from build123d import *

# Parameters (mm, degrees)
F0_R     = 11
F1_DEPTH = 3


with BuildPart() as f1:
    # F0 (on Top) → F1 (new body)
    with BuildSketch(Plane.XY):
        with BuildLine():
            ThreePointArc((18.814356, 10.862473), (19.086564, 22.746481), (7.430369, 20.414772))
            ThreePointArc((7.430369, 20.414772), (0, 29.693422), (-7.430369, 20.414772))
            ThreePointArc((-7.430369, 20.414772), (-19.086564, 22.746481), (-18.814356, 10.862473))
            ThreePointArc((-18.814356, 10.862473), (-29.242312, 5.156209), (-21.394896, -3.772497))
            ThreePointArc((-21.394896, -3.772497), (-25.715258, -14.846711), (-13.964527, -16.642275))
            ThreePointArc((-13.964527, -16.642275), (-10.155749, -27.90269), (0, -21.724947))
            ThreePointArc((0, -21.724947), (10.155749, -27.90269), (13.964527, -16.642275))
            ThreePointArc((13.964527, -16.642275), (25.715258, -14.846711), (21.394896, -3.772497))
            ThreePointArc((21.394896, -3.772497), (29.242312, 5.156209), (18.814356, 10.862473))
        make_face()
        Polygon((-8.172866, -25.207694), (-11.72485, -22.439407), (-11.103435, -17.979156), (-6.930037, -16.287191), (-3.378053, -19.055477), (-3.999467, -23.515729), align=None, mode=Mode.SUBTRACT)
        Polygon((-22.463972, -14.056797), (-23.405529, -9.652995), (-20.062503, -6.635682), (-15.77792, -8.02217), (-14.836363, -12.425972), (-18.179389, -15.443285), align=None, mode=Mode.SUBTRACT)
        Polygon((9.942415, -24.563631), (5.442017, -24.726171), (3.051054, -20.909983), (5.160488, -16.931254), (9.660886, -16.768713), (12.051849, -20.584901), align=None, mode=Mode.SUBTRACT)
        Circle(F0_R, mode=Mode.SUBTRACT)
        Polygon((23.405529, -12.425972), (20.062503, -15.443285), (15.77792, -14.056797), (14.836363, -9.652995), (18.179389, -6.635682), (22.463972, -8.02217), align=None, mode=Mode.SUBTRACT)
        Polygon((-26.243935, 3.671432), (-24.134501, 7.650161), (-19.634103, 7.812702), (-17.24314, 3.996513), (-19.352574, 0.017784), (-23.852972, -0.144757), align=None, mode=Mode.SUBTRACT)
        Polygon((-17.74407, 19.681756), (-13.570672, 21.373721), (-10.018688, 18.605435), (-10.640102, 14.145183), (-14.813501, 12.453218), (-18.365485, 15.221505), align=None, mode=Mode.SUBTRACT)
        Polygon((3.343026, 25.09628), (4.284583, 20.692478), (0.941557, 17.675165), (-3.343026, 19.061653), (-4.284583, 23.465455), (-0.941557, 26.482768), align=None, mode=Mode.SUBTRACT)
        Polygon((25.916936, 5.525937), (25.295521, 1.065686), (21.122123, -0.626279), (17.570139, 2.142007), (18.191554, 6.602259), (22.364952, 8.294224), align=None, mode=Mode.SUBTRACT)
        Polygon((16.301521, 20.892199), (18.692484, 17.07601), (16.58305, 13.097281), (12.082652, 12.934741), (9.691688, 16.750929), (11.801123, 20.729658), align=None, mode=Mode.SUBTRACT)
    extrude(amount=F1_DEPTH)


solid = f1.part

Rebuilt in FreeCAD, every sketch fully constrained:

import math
import FreeCAD as App
import Part
import Sketcher
Q = App.Units.Quantity

doc = App.newDocument("Part")
body = doc.addObject("PartDesign::Body", "Body")

# Sketch on XY plane
sketch1 = doc.addObject("Sketcher::SketchObject", "Sketch")
body.addObject(sketch1)
sketch1.AttachmentSupport = (doc.XY_Plane, [""])
sketch1.MapMode = "FlatFace"
sketch1.addGeometry(Part.ArcOfCircle(Part.Circle(App.Vector(14.2, 16.9, 0), App.Vector(0, 0, 1), 7.6), math.radians(-53), math.radians(153)), False)
sketch1.addGeometry(Part.ArcOfCircle(Part.Circle(App.Vector(0, 22.1, 0), App.Vector(0, 0, 1), 7.6), math.radians(-13), math.radians(193)), False)
sketch1.addGeometry(Part.ArcOfCircle(Part.Circle(App.Vector(-14.2, 16.9, 0), App.Vector(0, 0, 1), 7.6), math.radians(27), math.radians(233)), False)
sketch1.addGeometry(Part.ArcOfCircle(Part.Circle(App.Vector(-21.7, 3.8, 0), App.Vector(0, 0, 1), 7.6), math.radians(67), math.radians(273)), False)
sketch1.addGeometry(Part.ArcOfCircle(Part.Circle(App.Vector(-19.1, -11, 0), App.Vector(0, 0, 1), 7.6), math.radians(107), math.radians(313)), False)
sketch1.addGeometry(Part.ArcOfCircle(Part.Circle(App.Vector(-7.6, -20.7, 0), App.Vector(0, 0, 1), 7.6), math.radians(147), math.radians(353)), False)
sketch1.addGeometry(Part.ArcOfCircle(Part.Circle(App.Vector(7.6, -20.7, 0), App.Vector(0, 0, 1), 7.6), math.radians(-173), math.radians(33)), False)
sketch1.addGeometry(Part.ArcOfCircle(Part.Circle(App.Vector(19.1, -11, 0), App.Vector(0, 0, 1), 7.6), math.radians(-133), math.radians(73)), False)
sketch1.addGeometry(Part.ArcOfCircle(Part.Circle(App.Vector(21.7, 3.8, 0), App.Vector(0, 0, 1), 7.6), math.radians(-93), math.radians(113)), False)
sketch1.addGeometry(Part.LineSegment(App.Vector(-4, -23.5, 0), App.Vector(-8.2, -25.2, 0)), False)
sketch1.addGeometry(Part.LineSegment(App.Vector(-8.2, -25.2, 0), App.Vector(-11.7, -22.4, 0)), False)
sketch1.addGeometry(Part.LineSegment(App.Vector(-11.7, -22.4, 0), App.Vector(-11.1, -18, 0)), False)
sketch1.addGeometry(Part.LineSegment(App.Vector(-11.1, -18, 0), App.Vector(-6.9, -16.3, 0)), False)
sketch1.addGeometry(Part.LineSegment(App.Vector(-6.9, -16.3, 0), App.Vector(-3.4, -19.1, 0)), False)
sketch1.addGeometry(Part.LineSegment(App.Vector(-3.4, -19.1, 0), App.Vector(-4, -23.5, 0)), False)
sketch1.addGeometry(Part.LineSegment(App.Vector(-18.2, -15.4, 0), App.Vector(-22.5, -14.1, 0)), False)
sketch1.addGeometry(Part.LineSegment(App.Vector(-22.5, -14.1, 0), App.Vector(-23.4, -9.7, 0)), False)
sketch1.addGeometry(Part.LineSegment(App.Vector(-23.4, -9.7, 0), App.Vector(-20.1, -6.6, 0)), False)
sketch1.addGeometry(Part.LineSegment(App.Vector(-20.1, -6.6, 0), App.Vector(-15.8, -8, 0)), False)
sketch1.addGeometry(Part.LineSegment(App.Vector(-15.8, -8, 0), App.Vector(-14.8, -12.4, 0)), False)
sketch1.addGeometry(Part.LineSegment(App.Vector(-14.8, -12.4, 0), App.Vector(-18.2, -15.4, 0)), False)
sketch1.addGeometry(Part.LineSegment(App.Vector(12.1, -20.6, 0), App.Vector(9.9, -24.6, 0)), False)
sketch1.addGeometry(Part.LineSegment(App.Vector(9.9, -24.6, 0), App.Vector(5.4, -24.7, 0)), False)
sketch1.addGeometry(Part.LineSegment(App.Vector(5.4, -24.7, 0), App.Vector(3.1, -20.9, 0)), False)
sketch1.addGeometry(Part.LineSegment(App.Vector(3.1, -20.9, 0), App.Vector(5.2, -16.9, 0)), False)
sketch1.addGeometry(Part.LineSegment(App.Vector(5.2, -16.9, 0), App.Vector(9.7, -16.8, 0)), False)
sketch1.addGeometry(Part.LineSegment(App.Vector(9.7, -16.8, 0), App.Vector(12.1, -20.6, 0)), False)
sketch1.addGeometry(Part.Circle(App.Vector(0, 0, 0), App.Vector(0, 0, 1), 11), False)
sketch1.addGeometry(Part.LineSegment(App.Vector(22.5, -8, 0), App.Vector(23.4, -12.4, 0)), False)
sketch1.addGeometry(Part.LineSegment(App.Vector(23.4, -12.4, 0), App.Vector(20.1, -15.4, 0)), False)
sketch1.addGeometry(Part.LineSegment(App.Vector(20.1, -15.4, 0), App.Vector(15.8, -14.1, 0)), False)
sketch1.addGeometry(Part.LineSegment(App.Vector(15.8, -14.1, 0), App.Vector(14.8, -9.7, 0)), False)
sketch1.addGeometry(Part.LineSegment(App.Vector(14.8, -9.7, 0), App.Vector(18.2, -6.6, 0)), False)
sketch1.addGeometry(Part.LineSegment(App.Vector(18.2, -6.6, 0), App.Vector(22.5, -8, 0)), False)
sketch1.addGeometry(Part.LineSegment(App.Vector(-23.9, -0.1, 0), App.Vector(-26.2, 3.7, 0)), False)
sketch1.addGeometry(Part.LineSegment(App.Vector(-26.2, 3.7, 0), App.Vector(-24.1, 7.7, 0)), False)
sketch1.addGeometry(Part.LineSegment(App.Vector(-24.1, 7.7, 0), App.Vector(-19.6, 7.8, 0)), False)
sketch1.addGeometry(Part.LineSegment(App.Vector(-19.6, 7.8, 0), App.Vector(-17.2, 4, 0)), False)
sketch1.addGeometry(Part.LineSegment(App.Vector(-17.2, 4, 0), App.Vector(-19.4, 0, 0)), False)
sketch1.addGeometry(Part.LineSegment(App.Vector(-19.4, 0, 0), App.Vector(-23.9, -0.1, 0)), False)
sketch1.addGeometry(Part.LineSegment(App.Vector(-18.4, 15.2, 0), App.Vector(-17.7, 19.7, 0)), False)
sketch1.addGeometry(Part.LineSegment(App.Vector(-17.7, 19.7, 0), App.Vector(-13.6, 21.4, 0)), False)
sketch1.addGeometry(Part.LineSegment(App.Vector(-13.6, 21.4, 0), App.Vector(-10, 18.6, 0)), False)
sketch1.addGeometry(Part.LineSegment(App.Vector(-10, 18.6, 0), App.Vector(-10.6, 14.1, 0)), False)
sketch1.addGeometry(Part.LineSegment(App.Vector(-10.6, 14.1, 0), App.Vector(-14.8, 12.5, 0)), False)
sketch1.addGeometry(Part.LineSegment(App.Vector(-14.8, 12.5, 0), App.Vector(-18.4, 15.2, 0)), False)
sketch1.addGeometry(Part.LineSegment(App.Vector(22.4, 8.3, 0), App.Vector(25.9, 5.5, 0)), False)
sketch1.addGeometry(Part.LineSegment(App.Vector(25.9, 5.5, 0), App.Vector(25.3, 1.1, 0)), False)
sketch1.addGeometry(Part.LineSegment(App.Vector(25.3, 1.1, 0), App.Vector(21.1, -0.6, 0)), False)
sketch1.addGeometry(Part.LineSegment(App.Vector(21.1, -0.6, 0), App.Vector(17.6, 2.1, 0)), False)
sketch1.addGeometry(Part.LineSegment(App.Vector(17.6, 2.1, 0), App.Vector(18.2, 6.6, 0)), False)
sketch1.addGeometry(Part.LineSegment(App.Vector(18.2, 6.6, 0), App.Vector(22.4, 8.3, 0)), False)
sketch1.addGeometry(Part.LineSegment(App.Vector(-0.9, 26.5, 0), App.Vector(3.3, 25.1, 0)), False)
sketch1.addGeometry(Part.LineSegment(App.Vector(3.3, 25.1, 0), App.Vector(4.3, 20.7, 0)), False)
sketch1.addGeometry(Part.LineSegment(App.Vector(4.3, 20.7, 0), App.Vector(0.9, 17.7, 0)), False)
sketch1.addGeometry(Part.LineSegment(App.Vector(0.9, 17.7, 0), App.Vector(-3.3, 19.1, 0)), False)
sketch1.addGeometry(Part.LineSegment(App.Vector(-3.3, 19.1, 0), App.Vector(-4.3, 23.5, 0)), False)
sketch1.addGeometry(Part.LineSegment(App.Vector(-4.3, 23.5, 0), App.Vector(-0.9, 26.5, 0)), False)
sketch1.addGeometry(Part.LineSegment(App.Vector(11.8, 20.7, 0), App.Vector(16.3, 20.9, 0)), False)
sketch1.addGeometry(Part.LineSegment(App.Vector(16.3, 20.9, 0), App.Vector(18.7, 17.1, 0)), False)
sketch1.addGeometry(Part.LineSegment(App.Vector(18.7, 17.1, 0), App.Vector(16.6, 13.1, 0)), False)
sketch1.addGeometry(Part.LineSegment(App.Vector(16.6, 13.1, 0), App.Vector(12.1, 12.9, 0)), False)
sketch1.addGeometry(Part.LineSegment(App.Vector(12.1, 12.9, 0), App.Vector(9.7, 16.8, 0)), False)
sketch1.addGeometry(Part.LineSegment(App.Vector(9.7, 16.8, 0), App.Vector(11.8, 20.7, 0)), False)
sketch1.addConstraint(Sketcher.Constraint("Coincident", 0, 2, 1, 1))
sketch1.addConstraint(Sketcher.Constraint("Coincident", 1, 2, 2, 1))
sketch1.addConstraint(Sketcher.Constraint("Coincident", 2, 2, 3, 1))
sketch1.addConstraint(Sketcher.Constraint("Coincident", 3, 2, 4, 1))
sketch1.addConstraint(Sketcher.Constraint("Coincident", 4, 2, 5, 1))
sketch1.addConstraint(Sketcher.Constraint("Coincident", 5, 2, 6, 1))
sketch1.addConstraint(Sketcher.Constraint("Coincident", 6, 2, 7, 1))
sketch1.addConstraint(Sketcher.Constraint("Coincident", 7, 2, 8, 1))
sketch1.addConstraint(Sketcher.Constraint("Coincident", 8, 2, 0, 1))
sketch1.addConstraint(Sketcher.Constraint("Coincident", 9, 2, 10, 1))
sketch1.addConstraint(Sketcher.Constraint("Coincident", 10, 2, 11, 1))
sketch1.addConstraint(Sketcher.Constraint("Coincident", 11, 2, 12, 1))
sketch1.addConstraint(Sketcher.Constraint("Coincident", 12, 2, 13, 1))
sketch1.addConstraint(Sketcher.Constraint("Coincident", 13, 2, 14, 1))
sketch1.addConstraint(Sketcher.Constraint("Coincident", 14, 2, 9, 1))
sketch1.addConstraint(Sketcher.Constraint("Coincident", 15, 2, 16, 1))
sketch1.addConstraint(Sketcher.Constraint("Coincident", 16, 2, 17, 1))
sketch1.addConstraint(Sketcher.Constraint("Coincident", 17, 2, 18, 1))
sketch1.addConstraint(Sketcher.Constraint("Coincident", 18, 2, 19, 1))
sketch1.addConstraint(Sketcher.Constraint("Coincident", 19, 2, 20, 1))
sketch1.addConstraint(Sketcher.Constraint("Coincident", 20, 2, 15, 1))
sketch1.addConstraint(Sketcher.Constraint("Coincident", 21, 2, 22, 1))
sketch1.addConstraint(Sketcher.Constraint("Coincident", 22, 2, 23, 1))
sketch1.addConstraint(Sketcher.Constraint("Coincident", 23, 2, 24, 1))
sketch1.addConstraint(Sketcher.Constraint("Coincident", 24, 2, 25, 1))
sketch1.addConstraint(Sketcher.Constraint("Coincident", 25, 2, 26, 1))
sketch1.addConstraint(Sketcher.Constraint("Coincident", 26, 2, 21, 1))
sketch1.addConstraint(Sketcher.Constraint("Coincident", 28, 2, 29, 1))
sketch1.addConstraint(Sketcher.Constraint("Coincident", 29, 2, 30, 1))
sketch1.addConstraint(Sketcher.Constraint("Coincident", 30, 2, 31, 1))
sketch1.addConstraint(Sketcher.Constraint("Coincident", 31, 2, 32, 1))
sketch1.addConstraint(Sketcher.Constraint("Coincident", 32, 2, 33, 1))
sketch1.addConstraint(Sketcher.Constraint("Coincident", 33, 2, 28, 1))
sketch1.addConstraint(Sketcher.Constraint("Coincident", 34, 2, 35, 1))
sketch1.addConstraint(Sketcher.Constraint("Coincident", 35, 2, 36, 1))
sketch1.addConstraint(Sketcher.Constraint("Coincident", 36, 2, 37, 1))
sketch1.addConstraint(Sketcher.Constraint("Coincident", 37, 2, 38, 1))
sketch1.addConstraint(Sketcher.Constraint("Coincident", 38, 2, 39, 1))
sketch1.addConstraint(Sketcher.Constraint("Coincident", 39, 2, 34, 1))
sketch1.addConstraint(Sketcher.Constraint("Coincident", 40, 2, 41, 1))
sketch1.addConstraint(Sketcher.Constraint("Coincident", 41, 2, 42, 1))
sketch1.addConstraint(Sketcher.Constraint("Coincident", 42, 2, 43, 1))
sketch1.addConstraint(Sketcher.Constraint("Coincident", 43, 2, 44, 1))
sketch1.addConstraint(Sketcher.Constraint("Coincident", 44, 2, 45, 1))
sketch1.addConstraint(Sketcher.Constraint("Coincident", 45, 2, 40, 1))
sketch1.addConstraint(Sketcher.Constraint("Coincident", 46, 2, 47, 1))
sketch1.addConstraint(Sketcher.Constraint("Coincident", 47, 2, 48, 1))
sketch1.addConstraint(Sketcher.Constraint("Coincident", 48, 2, 49, 1))
sketch1.addConstraint(Sketcher.Constraint("Coincident", 49, 2, 50, 1))
sketch1.addConstraint(Sketcher.Constraint("Coincident", 50, 2, 51, 1))
sketch1.addConstraint(Sketcher.Constraint("Coincident", 51, 2, 46, 1))
sketch1.addConstraint(Sketcher.Constraint("Coincident", 52, 2, 53, 1))
sketch1.addConstraint(Sketcher.Constraint("Coincident", 53, 2, 54, 1))
sketch1.addConstraint(Sketcher.Constraint("Coincident", 54, 2, 55, 1))
sketch1.addConstraint(Sketcher.Constraint("Coincident", 55, 2, 56, 1))
sketch1.addConstraint(Sketcher.Constraint("Coincident", 56, 2, 57, 1))
sketch1.addConstraint(Sketcher.Constraint("Coincident", 57, 2, 52, 1))
sketch1.addConstraint(Sketcher.Constraint("Coincident", 58, 2, 59, 1))
sketch1.addConstraint(Sketcher.Constraint("Coincident", 59, 2, 60, 1))
sketch1.addConstraint(Sketcher.Constraint("Coincident", 60, 2, 61, 1))
sketch1.addConstraint(Sketcher.Constraint("Coincident", 61, 2, 62, 1))
sketch1.addConstraint(Sketcher.Constraint("Coincident", 62, 2, 63, 1))
sketch1.addConstraint(Sketcher.Constraint("Coincident", 63, 2, 58, 1))
sketch1.addConstraint(Sketcher.Constraint("Coincident", 27, 3, -1, 1))
sketch1.addConstraint(Sketcher.Constraint("Equal", 0, 1))
sketch1.addConstraint(Sketcher.Constraint("Equal", 1, 2))
sketch1.addConstraint(Sketcher.Constraint("Equal", 2, 3))
sketch1.addConstraint(Sketcher.Constraint("Equal", 3, 4))
sketch1.addConstraint(Sketcher.Constraint("Equal", 4, 5))
sketch1.addConstraint(Sketcher.Constraint("Equal", 5, 6))
sketch1.addConstraint(Sketcher.Constraint("Equal", 6, 7))
sketch1.addConstraint(Sketcher.Constraint("Equal", 7, 8))
sketch1.addConstraint(Sketcher.Constraint("Symmetric", 0, 3, 2, 3, -2))
sketch1.addConstraint(Sketcher.Constraint("Symmetric", 5, 3, 6, 3, -2))
sketch1.addConstraint(Sketcher.Constraint("Symmetric", 4, 3, 7, 3, -2))
sketch1.addConstraint(Sketcher.Constraint("Symmetric", 3, 3, 8, 3, -2))
sketch1.addConstraint(Sketcher.Constraint("PointOnObject", 1, 3, -2))
sketch1.addConstraint(Sketcher.Constraint("Parallel", 9, 12))
sketch1.addConstraint(Sketcher.Constraint("Parallel", 10, 13))
sketch1.addConstraint(Sketcher.Constraint("Parallel", 11, 14))
sketch1.addConstraint(Sketcher.Constraint("Parallel", 15, 18))
sketch1.addConstraint(Sketcher.Constraint("Parallel", 16, 19))
sketch1.addConstraint(Sketcher.Constraint("Parallel", 17, 20))
sketch1.addConstraint(Sketcher.Constraint("Parallel", 21, 24))
sketch1.addConstraint(Sketcher.Constraint("Parallel", 22, 25))
sketch1.addConstraint(Sketcher.Constraint("Parallel", 23, 26))
sketch1.addConstraint(Sketcher.Constraint("Parallel", 19, 28))
sketch1.addConstraint(Sketcher.Constraint("Parallel", 20, 29))
sketch1.addConstraint(Sketcher.Constraint("Parallel", 18, 30))
sketch1.addConstraint(Sketcher.Constraint("Parallel", 28, 31))
sketch1.addConstraint(Sketcher.Constraint("Parallel", 29, 32))
sketch1.addConstraint(Sketcher.Constraint("Parallel", 30, 33))
sketch1.addConstraint(Sketcher.Constraint("Parallel", 26, 34))
sketch1.addConstraint(Sketcher.Constraint("Parallel", 24, 35))
sketch1.addConstraint(Sketcher.Constraint("Parallel", 25, 36))
sketch1.addConstraint(Sketcher.Constraint("Parallel", 34, 37))
sketch1.addConstraint(Sketcher.Constraint("Parallel", 35, 38))
sketch1.addConstraint(Sketcher.Constraint("Parallel", 36, 39))
sketch1.addConstraint(Sketcher.Constraint("Parallel", 14, 40))
sketch1.addConstraint(Sketcher.Constraint("Parallel", 12, 41))
sketch1.addConstraint(Sketcher.Constraint("Parallel", 13, 42))
sketch1.addConstraint(Sketcher.Constraint("Parallel", 40, 43))
sketch1.addConstraint(Sketcher.Constraint("Parallel", 41, 44))
sketch1.addConstraint(Sketcher.Constraint("Parallel", 42, 45))
sketch1.addConstraint(Sketcher.Constraint("Parallel", 45, 46))
sketch1.addConstraint(Sketcher.Constraint("Parallel", 43, 47))
sketch1.addConstraint(Sketcher.Constraint("Parallel", 44, 48))
sketch1.addConstraint(Sketcher.Constraint("Parallel", 46, 49))
sketch1.addConstraint(Sketcher.Constraint("Parallel", 47, 50))
sketch1.addConstraint(Sketcher.Constraint("Parallel", 48, 51))
sketch1.addConstraint(Sketcher.Constraint("Parallel", 33, 52))
sketch1.addConstraint(Sketcher.Constraint("Parallel", 31, 53))
sketch1.addConstraint(Sketcher.Constraint("Parallel", 32, 54))
sketch1.addConstraint(Sketcher.Constraint("Parallel", 52, 55))
sketch1.addConstraint(Sketcher.Constraint("Parallel", 53, 56))
sketch1.addConstraint(Sketcher.Constraint("Parallel", 54, 57))
sketch1.addConstraint(Sketcher.Constraint("Parallel", 39, 58))
sketch1.addConstraint(Sketcher.Constraint("Parallel", 37, 59))
sketch1.addConstraint(Sketcher.Constraint("Parallel", 38, 60))
sketch1.addConstraint(Sketcher.Constraint("Parallel", 58, 61))
sketch1.addConstraint(Sketcher.Constraint("Parallel", 59, 62))
sketch1.addConstraint(Sketcher.Constraint("Parallel", 60, 63))
sketch1.addConstraint(Sketcher.Constraint("Horizontal", 19, 2, 28, 2))
sketch1.addConstraint(Sketcher.Constraint("Horizontal", 20, 2, 29, 2))
sketch1.addConstraint(Sketcher.Constraint("Horizontal", 15, 2, 30, 2))
sketch1.addConstraint(Sketcher.Constraint("Horizontal", 16, 2, 31, 2))
sketch1.addConstraint(Sketcher.Constraint("Horizontal", 17, 2, 32, 2))
sketch1.addConstraint(Sketcher.Constraint("Equal", 9, 10))
sketch1.addConstraint(Sketcher.Constraint("Equal", 10, 11))
sketch1.addConstraint(Sketcher.Constraint("Equal", 11, 12))
sketch1.addConstraint(Sketcher.Constraint("Equal", 14, 15))
sketch1.addConstraint(Sketcher.Constraint("Equal", 15, 16))
sketch1.addConstraint(Sketcher.Constraint("Equal", 16, 17))
sketch1.addConstraint(Sketcher.Constraint("Equal", 17, 18))
sketch1.addConstraint(Sketcher.Constraint("Equal", 20, 21))
sketch1.addConstraint(Sketcher.Constraint("Equal", 21, 22))
sketch1.addConstraint(Sketcher.Constraint("Equal", 22, 23))
sketch1.addConstraint(Sketcher.Constraint("Equal", 23, 24))
sketch1.addConstraint(Sketcher.Constraint("Equal", 33, 34))
sketch1.addConstraint(Sketcher.Constraint("Equal", 34, 35))
sketch1.addConstraint(Sketcher.Constraint("Equal", 35, 36))
sketch1.addConstraint(Sketcher.Constraint("Equal", 36, 37))
sketch1.addConstraint(Sketcher.Constraint("Equal", 39, 40))
sketch1.addConstraint(Sketcher.Constraint("Equal", 40, 41))
sketch1.addConstraint(Sketcher.Constraint("Equal", 41, 42))
sketch1.addConstraint(Sketcher.Constraint("Equal", 42, 43))
sketch1.addConstraint(Sketcher.Constraint("Equal", 45, 46))
sketch1.addConstraint(Sketcher.Constraint("Equal", 46, 47))
sketch1.addConstraint(Sketcher.Constraint("Equal", 47, 48))
sketch1.addConstraint(Sketcher.Constraint("Equal", 48, 49))
sketch1.addConstraint(Sketcher.Constraint("Equal", 51, 52))
sketch1.addConstraint(Sketcher.Constraint("Equal", 52, 53))
sketch1.addConstraint(Sketcher.Constraint("Equal", 53, 54))
sketch1.addConstraint(Sketcher.Constraint("Equal", 54, 55))
sketch1.addConstraint(Sketcher.Constraint("Equal", 57, 58))
sketch1.addConstraint(Sketcher.Constraint("Equal", 58, 59))
sketch1.addConstraint(Sketcher.Constraint("Equal", 59, 60))
sketch1.addConstraint(Sketcher.Constraint("Equal", 60, 61))
sketch1.addConstraint(Sketcher.Constraint("Diameter", 27, Q("22 mm")))
sketch1.addConstraint(Sketcher.Constraint("Radius", 0, Q("7.614456 mm")))
sketch1.addConstraint(Sketcher.Constraint("DistanceY", 26, 2, -1, 1, Q("20.584901 mm")))
sketch1.addConstraint(Sketcher.Constraint("DistanceX", 35, 2, -1, 1, Q("24.134501 mm")))
sketch1.addConstraint(Sketcher.Constraint("DistanceY", -1, 1, 36, 2, Q("7.812702 mm")))
sketch1.addConstraint(Sketcher.Constraint("DistanceX", 44, 2, -1, 1, Q("14.813501 mm")))
sketch1.addConstraint(Sketcher.Constraint("DistanceY", -1, 1, 58, 2, Q("20.892199 mm")))
sketch1.addConstraint(Sketcher.Constraint("Distance", 11, Q("4.503332 mm")))
sketch1.addConstraint(Sketcher.Constraint("DistanceY", -1, 1, 0, 3, Q("16.913469 mm")))
sketch1.addConstraint(Sketcher.Constraint("DistanceX", 5, 3, -1, 1, Q("7.551452 mm")))
sketch1.addConstraint(Sketcher.Constraint("DistanceX", -1, 1, 0, 2, Q("7.430369 mm")))
sketch1.addConstraint(Sketcher.Constraint("DistanceY", -1, 1, 0, 2, Q("20.414772 mm")))
sketch1.addConstraint(Sketcher.Constraint("DistanceX", 10, 2, -1, 1, Q("11.72485 mm")))
sketch1.addConstraint(Sketcher.Constraint("DistanceY", 12, 2, -1, 1, Q("16.287191 mm")))
sketch1.addConstraint(Sketcher.Constraint("DistanceY", 14, 2, -1, 1, Q("23.515729 mm")))
sketch1.addConstraint(Sketcher.Constraint("DistanceX", 15, 2, -1, 1, Q("22.463972 mm")))
sketch1.addConstraint(Sketcher.Constraint("DistanceX", 16, 2, -1, 1, Q("23.405529 mm")))
sketch1.addConstraint(Sketcher.Constraint("DistanceX", 18, 2, -1, 1, Q("15.77792 mm")))
sketch1.addConstraint(Sketcher.Constraint("DistanceY", 18, 2, -1, 1, Q("8.02217 mm")))
sketch1.addConstraint(Sketcher.Constraint("DistanceX", 20, 2, -1, 1, Q("18.179389 mm")))
sketch1.addConstraint(Sketcher.Constraint("DistanceY", 21, 2, -1, 1, Q("24.563631 mm")))
sketch1.addConstraint(Sketcher.Constraint("DistanceY", 22, 2, -1, 1, Q("24.726171 mm")))
sketch1.addConstraint(Sketcher.Constraint("DistanceX", -1, 1, 26, 2, Q("12.051849 mm")))
sketch1.addConstraint(Sketcher.Constraint("DistanceX", -1, 1, 28, 2, Q("23.405529 mm")))
sketch1.addConstraint(Sketcher.Constraint("DistanceX", 37, 2, -1, 1, Q("17.24314 mm")))
sketch1.addConstraint(Sketcher.Constraint("DistanceX", 40, 2, -1, 1, Q("17.74407 mm")))
sketch1.addConstraint(Sketcher.Constraint("DistanceY", -1, 1, 41, 2, Q("21.373721 mm")))
sketch1.addConstraint(Sketcher.Constraint("DistanceX", -1, 1, 47, 2, Q("25.295521 mm")))
sketch1.addConstraint(Sketcher.Constraint("DistanceY", 48, 2, -1, 1, Q("0.626279 mm")))
sketch1.addConstraint(Sketcher.Constraint("DistanceX", -1, 1, 49, 2, Q("17.570139 mm")))
sketch1.addConstraint(Sketcher.Constraint("DistanceY", -1, 1, 52, 2, Q("25.09628 mm")))
sketch1.addConstraint(Sketcher.Constraint("DistanceX", -1, 1, 58, 2, Q("16.301521 mm")))
sketch1.addConstraint(Sketcher.Constraint("DistanceX", 3, 3, -1, 1, Q("21.743538 mm")))
sketch1.addConstraint(Sketcher.Constraint("DistanceY", -1, 1, 3, 3, Q("3.833972 mm")))
sketch1.addConstraint(Sketcher.Constraint("DistanceX", 4, 3, -1, 1, Q("19.120946 mm")))
sketch1.addConstraint(Sketcher.Constraint("DistanceY", 4, 3, -1, 1, Q("11.039483 mm")))
sketch1.addConstraint(Sketcher.Constraint("DistanceY", 5, 3, -1, 1, Q("20.747442 mm")))
sketch1.addConstraint(Sketcher.Constraint("DistanceX", -1, 1, 52, 2, Q("3.343026 mm")))
pad1 = doc.addObject("PartDesign::Pad", "Pad")
body.addObject(pad1)
pad1.Profile = sketch1
pad1.Length = 3

doc.recompute()
